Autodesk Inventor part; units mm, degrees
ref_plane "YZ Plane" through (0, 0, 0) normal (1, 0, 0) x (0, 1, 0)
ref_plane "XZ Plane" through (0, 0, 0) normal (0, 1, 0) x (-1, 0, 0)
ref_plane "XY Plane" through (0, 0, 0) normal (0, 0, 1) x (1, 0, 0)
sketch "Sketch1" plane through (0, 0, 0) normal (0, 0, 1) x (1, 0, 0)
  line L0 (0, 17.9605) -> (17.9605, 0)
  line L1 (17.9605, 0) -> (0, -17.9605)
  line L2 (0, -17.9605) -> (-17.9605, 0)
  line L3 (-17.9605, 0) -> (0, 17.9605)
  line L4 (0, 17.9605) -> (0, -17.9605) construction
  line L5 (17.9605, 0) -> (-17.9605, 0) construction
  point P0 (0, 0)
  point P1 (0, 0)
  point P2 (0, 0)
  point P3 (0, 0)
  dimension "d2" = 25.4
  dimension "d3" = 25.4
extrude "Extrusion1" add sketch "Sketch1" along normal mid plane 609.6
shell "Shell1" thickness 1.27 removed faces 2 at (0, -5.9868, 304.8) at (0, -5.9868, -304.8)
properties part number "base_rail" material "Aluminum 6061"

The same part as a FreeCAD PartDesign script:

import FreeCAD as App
import Part
import Sketcher

V = App.Vector
Q = App.Units.Quantity


def faces_at(feature, points):
    """Names of the faces that lie closest to the given points."""
    faces = feature.Shape.Faces
    near = lambda p: min(range(len(faces)), key=lambda i: faces[i].distToShape(Part.Vertex(*p))[0])
    return sorted({f"Face{near(p) + 1}" for p in points})


def add_polygon(sketch, points):
    """Adds a closed chain of lines whose ends are joined by coincident constraints."""
    first, n = sketch.GeometryCount, len(points)
    for a, b in zip(points, points[1:] + points[:1]):
        sketch.addGeometry(Part.LineSegment(App.Vector(*a, 0), App.Vector(*b, 0)), False)
    for i in range(n):
        sketch.addConstraint(Sketcher.Constraint("Coincident", first + i, 2, first + (i + 1) % n, 1))

doc = App.newDocument("Part")
body = doc.addObject("PartDesign::Body", "Body")

sketch1 = body.newObject("Sketcher::SketchObject", "Sketch")
sketch1.AttachmentSupport = (doc.getObject("XY_Plane"), [""])
sketch1.MapMode = "FlatFace"
add_polygon(sketch1, [(18, 0), (0, 18), (-18, 0), (0, -18)])
sketch1.addConstraint(Sketcher.Constraint("Symmetric", 0, 2, 2, 2, -1, 1))
sketch1.addConstraint(Sketcher.Constraint("Symmetric", 1, 2, 3, 2, -1, 1))
sketch1.addConstraint(Sketcher.Constraint("PointOnObject", 0, 2, -2))
sketch1.addConstraint(Sketcher.Constraint("PointOnObject", 1, 2, -1))
sketch1.addConstraint(Sketcher.Constraint("Perpendicular", 0, 1))
sketch1.addConstraint(Sketcher.Constraint("Distance", 0, Q("1 in")))
pad1 = body.newObject("PartDesign::Pad", "Pad")
pad1.Profile = sketch1
pad1.Length = Q("24 in")
pad1.Midplane = True
doc.recompute()

thickness = body.newObject("PartDesign::Thickness", "Thickness")
thickness.Base = (pad1, faces_at(pad1, [(0, -5.987, 304.8), (0, -5.987, -304.8)]))
thickness.Value = Q("0.05 in")
thickness.Reversed = True
thickness.Join = "Intersection"

doc.recompute()
